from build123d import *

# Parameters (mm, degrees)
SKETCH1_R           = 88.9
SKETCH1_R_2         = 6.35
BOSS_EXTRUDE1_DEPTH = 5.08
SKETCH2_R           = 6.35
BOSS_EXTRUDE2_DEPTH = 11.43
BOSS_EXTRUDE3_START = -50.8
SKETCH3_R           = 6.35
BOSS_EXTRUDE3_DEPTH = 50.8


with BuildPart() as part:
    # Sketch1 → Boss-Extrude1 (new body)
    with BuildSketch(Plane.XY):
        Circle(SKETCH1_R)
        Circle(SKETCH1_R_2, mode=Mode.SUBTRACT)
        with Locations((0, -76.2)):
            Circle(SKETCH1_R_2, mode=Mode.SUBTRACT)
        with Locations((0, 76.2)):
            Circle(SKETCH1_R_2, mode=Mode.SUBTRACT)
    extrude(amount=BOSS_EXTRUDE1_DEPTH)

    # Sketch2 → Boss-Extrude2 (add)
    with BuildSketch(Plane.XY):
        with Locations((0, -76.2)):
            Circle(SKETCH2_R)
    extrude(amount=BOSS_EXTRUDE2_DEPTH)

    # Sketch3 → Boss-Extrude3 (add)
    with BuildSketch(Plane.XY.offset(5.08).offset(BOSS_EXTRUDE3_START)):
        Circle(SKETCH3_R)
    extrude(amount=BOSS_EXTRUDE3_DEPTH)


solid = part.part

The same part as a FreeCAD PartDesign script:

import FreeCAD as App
import Part
import Sketcher

V = App.Vector
Q = App.Units.Quantity

doc = App.newDocument("Part")
body = doc.addObject("PartDesign::Body", "Body")

sketch1 = doc.addObject("Sketcher::SketchObject", "Sketch")
body.addObject(sketch1)
sketch1.AttachmentSupport = (doc.XY_Plane, [""])
sketch1.MapMode = "FlatFace"
sketch1.addGeometry(Part.Circle(V(0, 0, 0), V(0, 0, 1), 89), False)
sketch1.addGeometry(Part.Circle(V(0, -76, 0), V(0, 0, 1), 6), False)
sketch1.addGeometry(Part.Circle(V(0, 0, 0), V(0, 0, 1), 6), False)
sketch1.addGeometry(Part.Circle(V(0, 76, 0), V(0, 0, 1), 6), False)
sketch1.addConstraint(Sketcher.Constraint("Coincident", 0, 3, -1, 1))
sketch1.addConstraint(Sketcher.Constraint("Coincident", 2, 3, -1, 1))
sketch1.addConstraint(Sketcher.Constraint("Equal", 1, 2))
sketch1.addConstraint(Sketcher.Constraint("Equal", 2, 3))
sketch1.addConstraint(Sketcher.Constraint("Symmetric", 1, 3, 3, 3, -1, 1))
sketch1.addConstraint(Sketcher.Constraint("PointOnObject", 1, 3, -2))
sketch1.addConstraint(Sketcher.Constraint("Diameter", 0, Q("7 in")))
sketch1.addConstraint(Sketcher.Constraint("Diameter", 1, Q("0.5 in")))
sketch1.addConstraint(Sketcher.Constraint("DistanceY", 1, 3, -1, 1, Q("3 in")))
pad1 = doc.addObject("PartDesign::Pad", "Pad")
body.addObject(pad1)
pad1.Profile = sketch1
pad1.Length = Q("0.2 in")

sketch2 = doc.addObject("Sketcher::SketchObject", "Sketch001")
body.addObject(sketch2)
sketch2.AttachmentSupport = (doc.XY_Plane, [""])
sketch2.MapMode = "FlatFace"
sketch2.addGeometry(Part.Circle(V(0, -76, 0), V(0, 0, 1), 6), False)
sketch2.addConstraint(Sketcher.Constraint("PointOnObject", 0, 3, -2))
sketch2.addConstraint(Sketcher.Constraint("Diameter", 0, Q("0.5 in")))
sketch2.addConstraint(Sketcher.Constraint("DistanceY", 0, 3, -1, 1, Q("3 in")))
pad2 = doc.addObject("PartDesign::Pad", "Pad001")
body.addObject(pad2)
pad2.Profile = sketch2
pad2.Length = Q("0.45 in")

sketch3 = doc.addObject("Sketcher::SketchObject", "Sketch002")
body.addObject(sketch3)
sketch3.AttachmentSupport = (doc.XY_Plane, [""])
sketch3.MapMode = "FlatFace"
sketch3.AttachmentOffset = App.Placement(V(0, 0, -1.8 * 25.4), App.Rotation())
sketch3.addGeometry(Part.Circle(V(0, 0, 0), V(0, 0, 1), 6), False)
sketch3.addConstraint(Sketcher.Constraint("Coincident", 0, 3, -1, 1))
sketch3.addConstraint(Sketcher.Constraint("Diameter", 0, Q("0.5 in")))
pad3 = doc.addObject("PartDesign::Pad", "Pad002")
body.addObject(pad3)
pad3.Profile = sketch3
pad3.Length = Q("2 in")

doc.recompute()
